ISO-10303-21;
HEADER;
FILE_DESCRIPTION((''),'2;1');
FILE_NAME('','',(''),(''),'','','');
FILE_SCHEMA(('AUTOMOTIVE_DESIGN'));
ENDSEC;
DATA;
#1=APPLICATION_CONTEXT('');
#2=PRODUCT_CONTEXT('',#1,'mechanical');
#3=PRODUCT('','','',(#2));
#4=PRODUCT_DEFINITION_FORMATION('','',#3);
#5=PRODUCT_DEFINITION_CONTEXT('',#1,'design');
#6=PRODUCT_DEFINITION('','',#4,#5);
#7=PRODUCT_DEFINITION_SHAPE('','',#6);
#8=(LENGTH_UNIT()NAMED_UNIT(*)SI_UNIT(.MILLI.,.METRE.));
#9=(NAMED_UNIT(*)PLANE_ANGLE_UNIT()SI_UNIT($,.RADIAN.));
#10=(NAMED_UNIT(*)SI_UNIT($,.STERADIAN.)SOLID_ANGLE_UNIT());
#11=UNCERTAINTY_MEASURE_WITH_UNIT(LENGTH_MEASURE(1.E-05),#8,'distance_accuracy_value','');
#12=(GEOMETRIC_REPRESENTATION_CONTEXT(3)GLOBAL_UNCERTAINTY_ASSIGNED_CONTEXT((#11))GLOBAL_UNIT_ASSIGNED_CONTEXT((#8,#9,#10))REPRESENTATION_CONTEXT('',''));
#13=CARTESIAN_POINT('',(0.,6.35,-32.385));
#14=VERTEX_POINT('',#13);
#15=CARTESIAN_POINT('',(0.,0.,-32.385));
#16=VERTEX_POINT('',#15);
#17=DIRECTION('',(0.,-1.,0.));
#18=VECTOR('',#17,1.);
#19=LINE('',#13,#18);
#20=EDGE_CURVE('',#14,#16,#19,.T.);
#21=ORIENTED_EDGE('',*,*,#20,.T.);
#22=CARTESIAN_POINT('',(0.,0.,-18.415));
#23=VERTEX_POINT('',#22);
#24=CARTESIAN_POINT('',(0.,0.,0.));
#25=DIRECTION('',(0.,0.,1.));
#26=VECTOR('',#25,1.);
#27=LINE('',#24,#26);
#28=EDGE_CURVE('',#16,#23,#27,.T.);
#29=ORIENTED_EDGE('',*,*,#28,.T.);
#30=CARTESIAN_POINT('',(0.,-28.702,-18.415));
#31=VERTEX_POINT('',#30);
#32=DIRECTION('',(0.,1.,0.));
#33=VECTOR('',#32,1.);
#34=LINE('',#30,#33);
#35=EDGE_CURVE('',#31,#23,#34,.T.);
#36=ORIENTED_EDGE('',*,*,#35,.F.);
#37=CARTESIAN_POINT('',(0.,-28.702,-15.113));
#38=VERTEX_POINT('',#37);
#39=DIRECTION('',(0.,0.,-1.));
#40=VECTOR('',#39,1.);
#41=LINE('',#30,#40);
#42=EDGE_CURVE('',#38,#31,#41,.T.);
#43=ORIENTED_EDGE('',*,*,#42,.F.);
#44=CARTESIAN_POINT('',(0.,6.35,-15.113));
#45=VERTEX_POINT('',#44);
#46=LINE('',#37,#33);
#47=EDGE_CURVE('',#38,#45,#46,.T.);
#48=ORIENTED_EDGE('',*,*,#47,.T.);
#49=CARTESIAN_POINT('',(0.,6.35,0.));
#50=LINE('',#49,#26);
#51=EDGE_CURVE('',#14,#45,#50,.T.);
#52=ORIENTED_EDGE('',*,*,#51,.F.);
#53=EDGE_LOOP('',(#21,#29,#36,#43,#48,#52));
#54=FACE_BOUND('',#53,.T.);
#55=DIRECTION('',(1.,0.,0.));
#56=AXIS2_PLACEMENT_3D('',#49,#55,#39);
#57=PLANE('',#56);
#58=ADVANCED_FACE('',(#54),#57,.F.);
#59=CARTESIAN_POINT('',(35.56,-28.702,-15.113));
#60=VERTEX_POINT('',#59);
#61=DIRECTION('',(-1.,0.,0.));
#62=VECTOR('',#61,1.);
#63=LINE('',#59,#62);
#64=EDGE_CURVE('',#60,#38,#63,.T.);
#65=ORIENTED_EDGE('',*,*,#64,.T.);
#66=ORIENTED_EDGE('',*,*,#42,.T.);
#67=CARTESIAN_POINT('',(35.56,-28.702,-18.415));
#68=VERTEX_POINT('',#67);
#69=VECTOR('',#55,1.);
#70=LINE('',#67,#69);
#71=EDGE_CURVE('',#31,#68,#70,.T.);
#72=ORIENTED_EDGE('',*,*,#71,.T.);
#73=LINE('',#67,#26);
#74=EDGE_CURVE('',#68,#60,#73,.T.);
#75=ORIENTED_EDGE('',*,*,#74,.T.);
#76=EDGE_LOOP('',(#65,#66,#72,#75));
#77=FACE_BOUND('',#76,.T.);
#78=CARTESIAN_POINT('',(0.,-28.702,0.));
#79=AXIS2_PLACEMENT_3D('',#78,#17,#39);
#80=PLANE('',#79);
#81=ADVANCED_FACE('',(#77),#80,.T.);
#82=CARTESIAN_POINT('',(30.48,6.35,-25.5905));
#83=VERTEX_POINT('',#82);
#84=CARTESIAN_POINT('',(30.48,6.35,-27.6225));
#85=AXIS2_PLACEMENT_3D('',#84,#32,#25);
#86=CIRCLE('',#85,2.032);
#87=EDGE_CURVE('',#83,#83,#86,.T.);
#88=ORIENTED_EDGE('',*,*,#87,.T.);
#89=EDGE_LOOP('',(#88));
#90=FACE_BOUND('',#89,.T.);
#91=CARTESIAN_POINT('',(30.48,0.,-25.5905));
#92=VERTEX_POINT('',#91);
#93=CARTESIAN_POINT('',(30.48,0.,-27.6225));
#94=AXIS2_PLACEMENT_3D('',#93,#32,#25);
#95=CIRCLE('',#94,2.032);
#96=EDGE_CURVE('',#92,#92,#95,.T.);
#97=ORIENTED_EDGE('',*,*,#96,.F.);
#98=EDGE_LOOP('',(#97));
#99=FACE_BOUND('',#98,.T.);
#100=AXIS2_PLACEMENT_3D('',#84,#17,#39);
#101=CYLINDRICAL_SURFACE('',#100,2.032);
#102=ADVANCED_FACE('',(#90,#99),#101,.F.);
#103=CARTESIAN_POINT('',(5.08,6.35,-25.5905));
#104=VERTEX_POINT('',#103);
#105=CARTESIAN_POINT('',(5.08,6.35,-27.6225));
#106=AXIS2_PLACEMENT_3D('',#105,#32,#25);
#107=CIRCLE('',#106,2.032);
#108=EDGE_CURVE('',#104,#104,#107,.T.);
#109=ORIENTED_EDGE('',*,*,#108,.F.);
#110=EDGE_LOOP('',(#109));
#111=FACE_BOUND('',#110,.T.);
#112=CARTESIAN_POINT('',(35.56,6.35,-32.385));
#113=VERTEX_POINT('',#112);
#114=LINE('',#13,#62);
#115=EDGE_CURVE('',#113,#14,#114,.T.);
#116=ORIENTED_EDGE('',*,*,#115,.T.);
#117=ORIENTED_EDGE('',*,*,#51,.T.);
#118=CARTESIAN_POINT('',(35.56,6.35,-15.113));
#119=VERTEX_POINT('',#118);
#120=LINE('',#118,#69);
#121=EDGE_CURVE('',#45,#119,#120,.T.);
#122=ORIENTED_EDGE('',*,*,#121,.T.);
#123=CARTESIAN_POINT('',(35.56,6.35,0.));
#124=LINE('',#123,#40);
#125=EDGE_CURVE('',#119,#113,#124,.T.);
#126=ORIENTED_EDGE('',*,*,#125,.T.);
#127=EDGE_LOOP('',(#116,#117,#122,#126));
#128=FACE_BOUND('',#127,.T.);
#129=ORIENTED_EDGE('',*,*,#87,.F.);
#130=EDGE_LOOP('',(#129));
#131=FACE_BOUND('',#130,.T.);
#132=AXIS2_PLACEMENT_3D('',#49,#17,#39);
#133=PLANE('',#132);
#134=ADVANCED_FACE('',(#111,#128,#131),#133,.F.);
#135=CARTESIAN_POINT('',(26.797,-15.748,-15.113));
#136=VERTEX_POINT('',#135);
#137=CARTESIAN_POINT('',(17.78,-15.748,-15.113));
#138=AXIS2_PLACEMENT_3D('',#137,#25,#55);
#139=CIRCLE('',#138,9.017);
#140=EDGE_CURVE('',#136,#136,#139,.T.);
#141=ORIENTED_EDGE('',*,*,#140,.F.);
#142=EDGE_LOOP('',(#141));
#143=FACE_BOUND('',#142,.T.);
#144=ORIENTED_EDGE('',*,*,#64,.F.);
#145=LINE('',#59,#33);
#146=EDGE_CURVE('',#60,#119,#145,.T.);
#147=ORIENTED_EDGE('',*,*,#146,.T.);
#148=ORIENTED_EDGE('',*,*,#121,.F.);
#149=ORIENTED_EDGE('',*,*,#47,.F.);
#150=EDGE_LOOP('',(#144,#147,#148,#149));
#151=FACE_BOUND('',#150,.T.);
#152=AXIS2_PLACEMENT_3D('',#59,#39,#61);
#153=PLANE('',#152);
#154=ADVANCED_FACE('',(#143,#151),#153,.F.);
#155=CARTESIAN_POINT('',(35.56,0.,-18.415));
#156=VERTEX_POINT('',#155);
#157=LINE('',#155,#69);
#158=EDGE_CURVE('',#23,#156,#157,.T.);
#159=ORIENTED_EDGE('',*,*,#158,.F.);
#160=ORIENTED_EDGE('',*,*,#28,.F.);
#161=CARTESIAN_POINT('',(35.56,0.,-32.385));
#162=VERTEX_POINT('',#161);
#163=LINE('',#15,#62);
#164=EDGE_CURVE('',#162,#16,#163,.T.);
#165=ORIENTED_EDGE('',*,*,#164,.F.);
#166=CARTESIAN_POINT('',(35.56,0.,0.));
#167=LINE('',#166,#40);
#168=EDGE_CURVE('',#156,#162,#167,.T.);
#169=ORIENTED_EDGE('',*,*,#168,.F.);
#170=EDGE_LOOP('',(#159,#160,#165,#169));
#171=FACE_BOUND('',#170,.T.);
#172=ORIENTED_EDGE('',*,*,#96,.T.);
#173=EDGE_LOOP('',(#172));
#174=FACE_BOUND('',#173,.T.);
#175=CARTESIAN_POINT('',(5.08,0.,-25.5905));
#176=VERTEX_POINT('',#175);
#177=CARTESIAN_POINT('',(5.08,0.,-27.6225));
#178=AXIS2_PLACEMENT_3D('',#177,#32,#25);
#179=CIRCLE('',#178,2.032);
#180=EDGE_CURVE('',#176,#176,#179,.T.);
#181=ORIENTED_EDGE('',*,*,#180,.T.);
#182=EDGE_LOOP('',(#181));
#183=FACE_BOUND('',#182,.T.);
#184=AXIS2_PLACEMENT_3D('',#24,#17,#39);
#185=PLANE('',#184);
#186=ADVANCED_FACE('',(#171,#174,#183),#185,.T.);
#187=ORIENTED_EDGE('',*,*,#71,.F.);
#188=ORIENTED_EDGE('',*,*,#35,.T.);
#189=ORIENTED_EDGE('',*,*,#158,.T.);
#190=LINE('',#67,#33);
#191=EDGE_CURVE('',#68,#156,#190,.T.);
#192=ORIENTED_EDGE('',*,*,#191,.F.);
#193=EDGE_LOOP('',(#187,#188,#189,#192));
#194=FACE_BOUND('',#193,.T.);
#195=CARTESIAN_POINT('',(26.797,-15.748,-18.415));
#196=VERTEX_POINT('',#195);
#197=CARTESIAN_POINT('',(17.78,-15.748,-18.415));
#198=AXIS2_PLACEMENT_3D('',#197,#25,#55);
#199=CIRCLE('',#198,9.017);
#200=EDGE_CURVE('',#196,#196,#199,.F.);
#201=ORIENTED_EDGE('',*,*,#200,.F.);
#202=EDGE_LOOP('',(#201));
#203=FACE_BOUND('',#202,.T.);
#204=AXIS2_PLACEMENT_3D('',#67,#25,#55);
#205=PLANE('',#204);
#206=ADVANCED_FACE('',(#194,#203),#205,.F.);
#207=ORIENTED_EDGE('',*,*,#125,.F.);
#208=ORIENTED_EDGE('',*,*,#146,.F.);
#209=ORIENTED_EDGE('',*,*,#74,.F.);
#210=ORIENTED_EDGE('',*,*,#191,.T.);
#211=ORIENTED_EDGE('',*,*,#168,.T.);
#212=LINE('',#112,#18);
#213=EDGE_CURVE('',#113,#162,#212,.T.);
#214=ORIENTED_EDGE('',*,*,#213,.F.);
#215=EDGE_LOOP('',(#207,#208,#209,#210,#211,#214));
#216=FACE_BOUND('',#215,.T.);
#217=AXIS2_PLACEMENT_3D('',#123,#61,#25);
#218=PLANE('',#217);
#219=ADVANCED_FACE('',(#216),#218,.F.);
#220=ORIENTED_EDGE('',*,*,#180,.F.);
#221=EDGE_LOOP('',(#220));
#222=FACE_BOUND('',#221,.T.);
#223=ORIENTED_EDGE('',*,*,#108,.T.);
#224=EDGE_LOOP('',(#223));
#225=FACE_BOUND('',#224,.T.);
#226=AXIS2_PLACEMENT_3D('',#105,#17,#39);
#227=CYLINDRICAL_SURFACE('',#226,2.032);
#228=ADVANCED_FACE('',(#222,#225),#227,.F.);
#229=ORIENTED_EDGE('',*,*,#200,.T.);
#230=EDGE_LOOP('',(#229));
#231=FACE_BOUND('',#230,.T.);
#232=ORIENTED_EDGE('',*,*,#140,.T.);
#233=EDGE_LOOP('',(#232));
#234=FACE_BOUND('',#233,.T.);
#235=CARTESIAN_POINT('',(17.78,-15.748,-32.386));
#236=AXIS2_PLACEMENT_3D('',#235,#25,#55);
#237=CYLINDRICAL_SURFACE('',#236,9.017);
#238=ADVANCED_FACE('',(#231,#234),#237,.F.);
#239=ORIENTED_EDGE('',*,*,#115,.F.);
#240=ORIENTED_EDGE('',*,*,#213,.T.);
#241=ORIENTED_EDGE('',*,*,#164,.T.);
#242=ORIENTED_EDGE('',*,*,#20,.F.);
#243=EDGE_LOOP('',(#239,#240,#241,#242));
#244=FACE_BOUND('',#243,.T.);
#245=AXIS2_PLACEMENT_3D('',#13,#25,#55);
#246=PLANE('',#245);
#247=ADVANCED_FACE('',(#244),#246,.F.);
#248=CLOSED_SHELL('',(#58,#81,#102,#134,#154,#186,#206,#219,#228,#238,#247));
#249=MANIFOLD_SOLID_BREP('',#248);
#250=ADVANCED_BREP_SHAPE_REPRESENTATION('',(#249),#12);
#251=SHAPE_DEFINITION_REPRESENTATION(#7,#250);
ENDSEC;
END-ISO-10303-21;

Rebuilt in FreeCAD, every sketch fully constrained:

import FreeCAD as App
import Part
import Sketcher

V = App.Vector
Q = App.Units.Quantity

doc = App.newDocument("Part")
body = doc.addObject("PartDesign::Body", "Body")

# Sketch on XZ plane
sketch1 = body.newObject("Sketcher::SketchObject", "Sketch")
sketch1.AttachmentSupport = (doc.getObject("XZ_Plane"), [""])
sketch1.MapMode = "FlatFace"
sketch1.addGeometry(Part.LineSegment(V(0, -32.385, 0), V(0, 0, 0)), False)
sketch1.addGeometry(Part.LineSegment(V(0, 0, 0), V(35.56, 0, 0)), False)
sketch1.addGeometry(Part.LineSegment(V(35.56, 0, 0), V(35.56, -32.385, 0)), False)
sketch1.addGeometry(Part.LineSegment(V(35.56, -32.385, 0), V(0, -32.385, 0)), False)
sketch1.addGeometry(Part.Circle(V(17.78, -6.7945, 0), V(0, 0, 1), 2.032), False)
sketch1.addGeometry(Part.Circle(V(5.08, -27.6225, 0), V(0, 0, 1), 2.032), False)
sketch1.addGeometry(Part.Circle(V(30.48, -27.6225, 0), V(0, 0, 1), 2.032), False)
sketch1.addConstraint(Sketcher.Constraint("Coincident", 0, 2, 1, 1))
sketch1.addConstraint(Sketcher.Constraint("Coincident", 1, 2, 2, 1))
sketch1.addConstraint(Sketcher.Constraint("Coincident", 2, 2, 3, 1))
sketch1.addConstraint(Sketcher.Constraint("Coincident", 3, 2, 0, 1))
sketch1.addConstraint(Sketcher.Constraint("Vertical", 0))
sketch1.addConstraint(Sketcher.Constraint("Horizontal", 1))
sketch1.addConstraint(Sketcher.Constraint("Vertical", 2))
sketch1.addConstraint(Sketcher.Constraint("Horizontal", 3))
sketch1.addConstraint(Sketcher.Constraint("Coincident", 0, 2, -1, 1))
sketch1.addConstraint(Sketcher.Constraint("Equal", 4, 5))
sketch1.addConstraint(Sketcher.Constraint("Equal", 5, 6))
sketch1.addConstraint(Sketcher.Constraint("Horizontal", 5, 3, 6, 3))
sketch1.addConstraint(Sketcher.Constraint("Diameter", 4, Q("0.16 in")))
sketch1.addConstraint(Sketcher.Constraint("DistanceX", 1, 1, 1, 2, Q("1.4 in")))
sketch1.addConstraint(Sketcher.Constraint("DistanceX", 5, 3, 6, 3, Q("1 in")))
sketch1.addConstraint(Sketcher.Constraint("DistanceX", -1, 1, 4, 3, Q("0.7 in")))
sketch1.addConstraint(Sketcher.Constraint("DistanceX", -1, 1, 5, 3, Q("0.2 in")))
sketch1.addConstraint(Sketcher.Constraint("DistanceY", 0, 1, 0, 2, Q("1.275 in")))
sketch1.addConstraint(Sketcher.Constraint("DistanceY", 5, 3, 4, 3, Q("0.82 in")))
sketch1.addConstraint(Sketcher.Constraint("DistanceY", 2, 2, 6, 3, Q("0.1875 in")))
pad1 = body.newObject("PartDesign::Pad", "Pad")
pad1.Profile = sketch1
pad1.Length = Q("0.25 in")
pad1.Reversed = True

# Sketch on XZ plane
sketch2 = body.newObject("Sketcher::SketchObject", "Sketch001")
sketch2.AttachmentSupport = (doc.getObject("XZ_Plane"), [""])
sketch2.MapMode = "FlatFace"
sketch2.addGeometry(Part.LineSegment(V(0, -15.113, 0), V(0, -18.415, 0)), False)
sketch2.addGeometry(Part.LineSegment(V(0, -18.415, 0), V(35.56, -18.415, 0)), False)
sketch2.addGeometry(Part.LineSegment(V(35.56, -18.415, 0), V(35.56, -15.113, 0)), False)
sketch2.addGeometry(Part.LineSegment(V(35.56, -15.113, 0), V(0, -15.113, 0)), False)
sketch2.addConstraint(Sketcher.Constraint("Coincident", 0, 2, 1, 1))
sketch2.addConstraint(Sketcher.Constraint("Coincident", 1, 2, 2, 1))
sketch2.addConstraint(Sketcher.Constraint("Coincident", 2, 2, 3, 1))
sketch2.addConstraint(Sketcher.Constraint("Coincident", 3, 2, 0, 1))
sketch2.addConstraint(Sketcher.Constraint("Vertical", 0))
sketch2.addConstraint(Sketcher.Constraint("Horizontal", 1))
sketch2.addConstraint(Sketcher.Constraint("Vertical", 2))
sketch2.addConstraint(Sketcher.Constraint("Horizontal", 3))
sketch2.addConstraint(Sketcher.Constraint("PointOnObject", 0, 2, -2))
sketch2.addConstraint(Sketcher.Constraint("DistanceX", 1, 1, 1, 2, Q("1.4 in")))
sketch2.addConstraint(Sketcher.Constraint("DistanceY", 0, 2, 0, 1, Q("0.13 in")))
sketch2.addConstraint(Sketcher.Constraint("DistanceY", 0, 2, -1, 1, Q("0.725 in")))
pad2 = body.newObject("PartDesign::Pad", "Pad001")
pad2.Profile = sketch2
pad2.Length = Q("1.13 in")

# Sketch on XY plane
sketch3 = body.newObject("Sketcher::SketchObject", "Sketch002")
sketch3.AttachmentSupport = (doc.getObject("XY_Plane"), [""])
sketch3.MapMode = "FlatFace"
sketch3.AttachmentOffset = App.Placement(V(0, 0, -0.595 * 25.4), App.Rotation())
sketch3.addGeometry(Part.Circle(V(17.78, -15.748, 0), V(0, 0, 1), 9.017), False)
sketch3.addConstraint(Sketcher.Constraint("Diameter", 0, Q("0.71 in")))
sketch3.addConstraint(Sketcher.Constraint("DistanceX", -1, 1, 0, 3, Q("0.7 in")))
sketch3.addConstraint(Sketcher.Constraint("DistanceY", 0, 3, -1, 1, Q("0.62 in")))
pocket1 = body.newObject("PartDesign::Pocket", "Pocket")
pocket1.Profile = sketch3
pocket1.Type = "UpToFirst"

# Sketch on XZ plane
sketch4 = body.newObject("Sketcher::SketchObject", "Sketch003")
sketch4.AttachmentSupport = (doc.getObject("XZ_Plane"), [""])
sketch4.MapMode = "FlatFace"
sketch4.addGeometry(Part.LineSegment(V(0, 0, 0), V(0, -15.113, 0)), False)
sketch4.addGeometry(Part.LineSegment(V(0, -15.113, 0), V(35.56, -15.113, 0)), False)
sketch4.addGeometry(Part.LineSegment(V(35.56, -15.113, 0), V(35.56, 0, 0)), False)
sketch4.addGeometry(Part.LineSegment(V(35.56, 0, 0), V(0, 0, 0)), False)
sketch4.addConstraint(Sketcher.Constraint("Coincident", 0, 2, 1, 1))
sketch4.addConstraint(Sketcher.Constraint("Coincident", 1, 2, 2, 1))
sketch4.addConstraint(Sketcher.Constraint("Coincident", 2, 2, 3, 1))
sketch4.addConstraint(Sketcher.Constraint("Coincident", 3, 2, 0, 1))
sketch4.addConstraint(Sketcher.Constraint("Vertical", 0))
sketch4.addConstraint(Sketcher.Constraint("Horizontal", 1))
sketch4.addConstraint(Sketcher.Constraint("Vertical", 2))
sketch4.addConstraint(Sketcher.Constraint("Horizontal", 3))
sketch4.addConstraint(Sketcher.Constraint("Coincident", 3, 2, -1, 1))
sketch4.addConstraint(Sketcher.Constraint("DistanceX", 1, 1, 1, 2, Q("1.4 in")))
sketch4.addConstraint(Sketcher.Constraint("DistanceY", 0, 2, 0, 1, Q("0.595 in")))
pocket2 = body.newObject("PartDesign::Pocket", "Pocket001")
pocket2.Profile = sketch4
pocket2.Type = "ThroughAll"

doc.recompute()
